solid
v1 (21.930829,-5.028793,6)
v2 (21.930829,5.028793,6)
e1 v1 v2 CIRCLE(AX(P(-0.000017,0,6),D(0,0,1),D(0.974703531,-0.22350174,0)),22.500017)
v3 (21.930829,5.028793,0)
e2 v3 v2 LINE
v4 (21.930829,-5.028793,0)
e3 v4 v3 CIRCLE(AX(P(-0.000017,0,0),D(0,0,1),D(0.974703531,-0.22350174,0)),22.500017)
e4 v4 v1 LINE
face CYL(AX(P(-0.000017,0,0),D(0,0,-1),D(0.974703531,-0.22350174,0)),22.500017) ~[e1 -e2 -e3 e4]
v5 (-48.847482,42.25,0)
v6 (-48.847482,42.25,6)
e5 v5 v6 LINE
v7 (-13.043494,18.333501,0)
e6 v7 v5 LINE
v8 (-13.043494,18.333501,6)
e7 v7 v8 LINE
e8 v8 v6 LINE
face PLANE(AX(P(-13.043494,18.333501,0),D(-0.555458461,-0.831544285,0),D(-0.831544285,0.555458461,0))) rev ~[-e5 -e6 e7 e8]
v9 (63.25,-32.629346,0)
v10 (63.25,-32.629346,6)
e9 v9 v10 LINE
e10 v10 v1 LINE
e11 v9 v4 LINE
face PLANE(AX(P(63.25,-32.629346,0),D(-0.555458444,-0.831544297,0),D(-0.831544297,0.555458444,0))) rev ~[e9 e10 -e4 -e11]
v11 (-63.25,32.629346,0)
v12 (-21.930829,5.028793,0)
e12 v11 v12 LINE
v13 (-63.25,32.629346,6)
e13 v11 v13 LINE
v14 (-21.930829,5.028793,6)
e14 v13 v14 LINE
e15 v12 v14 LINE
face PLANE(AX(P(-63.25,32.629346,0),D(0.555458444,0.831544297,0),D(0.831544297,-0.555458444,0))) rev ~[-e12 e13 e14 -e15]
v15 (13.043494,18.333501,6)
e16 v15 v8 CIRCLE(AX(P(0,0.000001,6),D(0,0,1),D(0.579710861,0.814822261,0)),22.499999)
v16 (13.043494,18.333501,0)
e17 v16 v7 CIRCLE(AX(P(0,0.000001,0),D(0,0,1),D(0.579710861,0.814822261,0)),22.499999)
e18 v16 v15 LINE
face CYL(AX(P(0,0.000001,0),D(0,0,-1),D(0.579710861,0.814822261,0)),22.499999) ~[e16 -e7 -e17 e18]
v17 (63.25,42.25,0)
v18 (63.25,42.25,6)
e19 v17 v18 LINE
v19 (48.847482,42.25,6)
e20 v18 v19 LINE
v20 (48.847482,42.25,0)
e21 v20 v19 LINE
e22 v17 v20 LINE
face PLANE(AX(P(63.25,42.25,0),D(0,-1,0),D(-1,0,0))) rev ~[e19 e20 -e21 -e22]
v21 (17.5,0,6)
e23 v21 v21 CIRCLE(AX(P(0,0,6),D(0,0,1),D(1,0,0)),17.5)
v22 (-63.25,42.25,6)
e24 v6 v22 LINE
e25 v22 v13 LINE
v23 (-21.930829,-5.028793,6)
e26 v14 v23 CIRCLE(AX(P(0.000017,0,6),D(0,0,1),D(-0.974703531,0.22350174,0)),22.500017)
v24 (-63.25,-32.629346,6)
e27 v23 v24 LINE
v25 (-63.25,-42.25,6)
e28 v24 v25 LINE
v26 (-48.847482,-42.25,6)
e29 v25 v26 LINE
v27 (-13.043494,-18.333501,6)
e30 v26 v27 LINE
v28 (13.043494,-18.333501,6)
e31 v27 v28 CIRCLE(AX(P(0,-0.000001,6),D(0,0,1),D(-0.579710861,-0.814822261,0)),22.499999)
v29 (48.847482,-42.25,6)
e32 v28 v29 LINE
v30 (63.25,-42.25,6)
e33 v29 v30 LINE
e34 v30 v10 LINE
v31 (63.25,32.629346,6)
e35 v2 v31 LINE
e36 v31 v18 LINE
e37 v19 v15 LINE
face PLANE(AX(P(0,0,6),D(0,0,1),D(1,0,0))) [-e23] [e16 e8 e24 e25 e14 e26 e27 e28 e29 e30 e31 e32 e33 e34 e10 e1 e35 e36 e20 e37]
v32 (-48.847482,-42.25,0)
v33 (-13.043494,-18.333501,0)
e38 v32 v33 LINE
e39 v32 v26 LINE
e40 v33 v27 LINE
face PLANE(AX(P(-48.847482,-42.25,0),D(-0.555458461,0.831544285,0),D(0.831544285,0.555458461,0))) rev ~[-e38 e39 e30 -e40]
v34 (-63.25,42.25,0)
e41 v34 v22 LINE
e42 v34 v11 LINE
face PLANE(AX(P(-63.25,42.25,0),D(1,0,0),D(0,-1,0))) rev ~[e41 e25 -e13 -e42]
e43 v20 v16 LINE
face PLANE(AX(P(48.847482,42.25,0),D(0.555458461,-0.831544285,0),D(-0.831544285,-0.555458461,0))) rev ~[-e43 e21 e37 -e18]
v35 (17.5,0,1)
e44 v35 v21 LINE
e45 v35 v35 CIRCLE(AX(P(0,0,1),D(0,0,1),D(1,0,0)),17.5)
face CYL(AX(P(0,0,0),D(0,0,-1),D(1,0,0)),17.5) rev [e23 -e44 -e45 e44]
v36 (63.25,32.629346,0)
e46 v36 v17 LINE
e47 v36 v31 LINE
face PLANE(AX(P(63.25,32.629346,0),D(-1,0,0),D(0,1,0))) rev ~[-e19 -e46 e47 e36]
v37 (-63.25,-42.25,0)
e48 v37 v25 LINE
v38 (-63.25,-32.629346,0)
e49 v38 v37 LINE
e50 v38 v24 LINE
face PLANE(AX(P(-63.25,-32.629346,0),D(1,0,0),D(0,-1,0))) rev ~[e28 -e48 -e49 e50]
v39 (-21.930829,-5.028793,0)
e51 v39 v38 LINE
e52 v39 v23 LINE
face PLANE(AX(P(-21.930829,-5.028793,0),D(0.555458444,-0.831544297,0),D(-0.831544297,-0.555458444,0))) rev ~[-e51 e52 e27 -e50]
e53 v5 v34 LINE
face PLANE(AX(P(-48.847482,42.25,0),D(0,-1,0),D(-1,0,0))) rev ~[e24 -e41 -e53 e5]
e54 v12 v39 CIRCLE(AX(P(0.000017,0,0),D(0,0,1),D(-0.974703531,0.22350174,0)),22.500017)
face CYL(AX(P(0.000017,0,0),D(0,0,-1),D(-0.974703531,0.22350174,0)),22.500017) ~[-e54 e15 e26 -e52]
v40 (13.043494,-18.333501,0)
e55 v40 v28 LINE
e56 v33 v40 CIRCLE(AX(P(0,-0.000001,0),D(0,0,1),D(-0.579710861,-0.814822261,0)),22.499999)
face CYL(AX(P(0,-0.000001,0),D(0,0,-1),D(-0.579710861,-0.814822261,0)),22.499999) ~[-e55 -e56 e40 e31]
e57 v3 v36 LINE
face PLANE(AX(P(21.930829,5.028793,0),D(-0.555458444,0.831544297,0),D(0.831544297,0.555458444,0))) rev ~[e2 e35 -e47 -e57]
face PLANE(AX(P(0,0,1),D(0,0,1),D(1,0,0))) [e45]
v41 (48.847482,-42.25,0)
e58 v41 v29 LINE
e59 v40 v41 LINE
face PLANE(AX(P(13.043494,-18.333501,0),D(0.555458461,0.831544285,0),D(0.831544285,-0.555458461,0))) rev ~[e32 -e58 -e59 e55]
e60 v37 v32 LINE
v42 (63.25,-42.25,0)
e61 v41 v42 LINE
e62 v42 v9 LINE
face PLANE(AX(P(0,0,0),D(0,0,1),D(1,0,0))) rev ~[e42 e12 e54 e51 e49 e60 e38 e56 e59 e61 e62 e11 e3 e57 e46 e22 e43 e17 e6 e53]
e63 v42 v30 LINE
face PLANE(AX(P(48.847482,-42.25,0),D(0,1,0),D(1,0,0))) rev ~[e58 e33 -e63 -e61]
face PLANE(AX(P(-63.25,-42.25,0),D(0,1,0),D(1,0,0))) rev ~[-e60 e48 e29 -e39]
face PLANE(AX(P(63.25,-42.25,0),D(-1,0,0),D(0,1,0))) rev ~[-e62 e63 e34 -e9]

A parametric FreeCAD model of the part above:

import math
import FreeCAD as App
import Part
import Sketcher

V = App.Vector

doc = App.newDocument("Part")
body = doc.addObject("PartDesign::Body", "Body")

# Sketch on XY plane
sketch1 = body.newObject("Sketcher::SketchObject", "Sketch")
sketch1.AttachmentSupport = (doc.getObject("XY_Plane"), [""])
sketch1.MapMode = "FlatFace"
sketch1.addGeometry(Part.LineSegment(V(-63.25, -32.629346, 0), V(-63.25, -42.25, 0)), False)
sketch1.addGeometry(Part.LineSegment(V(-63.25, -42.25, 0), V(-48.847482, -42.25, 0)), False)
sketch1.addGeometry(Part.LineSegment(V(-48.847482, -42.25, 0), V(-13.043494, -18.333501, 0)), False)
sketch1.addGeometry(Part.ArcOfCircle(Part.Circle(V(0, -0.000001, 0), V(0, 0, 1), 22.499999), math.radians(-125.430209), math.radians(-54.569791)), False)
sketch1.addGeometry(Part.LineSegment(V(13.043494, -18.333501, 0), V(48.847482, -42.25, 0)), False)
sketch1.addGeometry(Part.LineSegment(V(48.847482, -42.25, 0), V(63.25, -42.25, 0)), False)
sketch1.addGeometry(Part.LineSegment(V(63.25, -42.25, 0), V(63.25, -32.629346, 0)), False)
sketch1.addGeometry(Part.LineSegment(V(63.25, -32.629346, 0), V(21.930829, -5.028793, 0)), False)
sketch1.addGeometry(Part.ArcOfCircle(Part.Circle(V(-0.000017, 0, 0), V(0, 0, 1), 22.500017), math.radians(-12.914791), math.radians(12.914791)), False)
sketch1.addGeometry(Part.LineSegment(V(21.930829, 5.028793, 0), V(63.25, 32.629346, 0)), False)
sketch1.addGeometry(Part.LineSegment(V(63.25, 32.629346, 0), V(63.25, 42.25, 0)), False)
sketch1.addGeometry(Part.LineSegment(V(63.25, 42.25, 0), V(48.847482, 42.25, 0)), False)
sketch1.addGeometry(Part.LineSegment(V(48.847482, 42.25, 0), V(13.043494, 18.333501, 0)), False)
sketch1.addGeometry(Part.ArcOfCircle(Part.Circle(V(0, 0.000001, 0), V(0, 0, 1), 22.499999), math.radians(54.569791), math.radians(125.430209)), False)
sketch1.addGeometry(Part.LineSegment(V(-13.043494, 18.333501, 0), V(-48.847482, 42.25, 0)), False)
sketch1.addGeometry(Part.LineSegment(V(-48.847482, 42.25, 0), V(-63.25, 42.25, 0)), False)
sketch1.addGeometry(Part.LineSegment(V(-63.25, 42.25, 0), V(-63.25, 32.629346, 0)), False)
sketch1.addGeometry(Part.LineSegment(V(-63.25, 32.629346, 0), V(-21.930829, 5.028793, 0)), False)
sketch1.addGeometry(Part.ArcOfCircle(Part.Circle(V(0.000017, 0, 0), V(0, 0, 1), 22.500017), math.radians(167.085209), math.radians(192.914791)), False)
sketch1.addGeometry(Part.LineSegment(V(-21.930829, -5.028793, 0), V(-63.25, -32.629346, 0)), False)
sketch1.addGeometry(Part.Circle(V(0, 0, 0), V(0, 0, 1), 17.5), False)
sketch1.addConstraint(Sketcher.Constraint("Coincident", 0, 2, 1, 1))
sketch1.addConstraint(Sketcher.Constraint("Coincident", 1, 2, 2, 1))
sketch1.addConstraint(Sketcher.Constraint("Coincident", 2, 2, 3, 1))
sketch1.addConstraint(Sketcher.Constraint("Coincident", 3, 2, 4, 1))
sketch1.addConstraint(Sketcher.Constraint("Coincident", 4, 2, 5, 1))
sketch1.addConstraint(Sketcher.Constraint("Coincident", 5, 2, 6, 1))
sketch1.addConstraint(Sketcher.Constraint("Coincident", 6, 2, 7, 1))
sketch1.addConstraint(Sketcher.Constraint("Coincident", 7, 2, 8, 1))
sketch1.addConstraint(Sketcher.Constraint("Coincident", 8, 2, 9, 1))
sketch1.addConstraint(Sketcher.Constraint("Coincident", 9, 2, 10, 1))
sketch1.addConstraint(Sketcher.Constraint("Coincident", 10, 2, 11, 1))
sketch1.addConstraint(Sketcher.Constraint("Coincident", 11, 2, 12, 1))
sketch1.addConstraint(Sketcher.Constraint("Coincident", 12, 2, 13, 1))
sketch1.addConstraint(Sketcher.Constraint("Coincident", 13, 2, 14, 1))
sketch1.addConstraint(Sketcher.Constraint("Coincident", 14, 2, 15, 1))
sketch1.addConstraint(Sketcher.Constraint("Coincident", 15, 2, 16, 1))
sketch1.addConstraint(Sketcher.Constraint("Coincident", 16, 2, 17, 1))
sketch1.addConstraint(Sketcher.Constraint("Coincident", 17, 2, 18, 1))
sketch1.addConstraint(Sketcher.Constraint("Coincident", 18, 2, 19, 1))
sketch1.addConstraint(Sketcher.Constraint("Coincident", 19, 2, 0, 1))
sketch1.addConstraint(Sketcher.Constraint("Vertical", 0))
sketch1.addConstraint(Sketcher.Constraint("Horizontal", 1))
sketch1.addConstraint(Sketcher.Constraint("Horizontal", 5))
sketch1.addConstraint(Sketcher.Constraint("Vertical", 6))
sketch1.addConstraint(Sketcher.Constraint("Vertical", 10))
sketch1.addConstraint(Sketcher.Constraint("Horizontal", 11))
sketch1.addConstraint(Sketcher.Constraint("Horizontal", 15))
sketch1.addConstraint(Sketcher.Constraint("Vertical", 16))
sketch1.addConstraint(Sketcher.Constraint("Coincident", 3, 3, -1, 1))
sketch1.addConstraint(Sketcher.Constraint("Coincident", 13, 3, -1, 1))
sketch1.addConstraint(Sketcher.Constraint("Coincident", 20, 3, -1, 1))
sketch1.addConstraint(Sketcher.Constraint("Equal", 3, 13))
sketch1.addConstraint(Sketcher.Constraint("Equal", 8, 18))
sketch1.addConstraint(Sketcher.Constraint("Symmetric", 8, 3, 18, 3, -1, 1))
sketch1.addConstraint(Sketcher.Constraint("Symmetric", 0, 2, 10, 2, -1, 1))
sketch1.addConstraint(Sketcher.Constraint("Symmetric", 4, 2, 14, 2, -1, 1))
sketch1.addConstraint(Sketcher.Constraint("Symmetric", 6, 2, 16, 2, -1, 1))
sketch1.addConstraint(Sketcher.Constraint("Symmetric", 1, 2, 4, 2, -2))
sketch1.addConstraint(Sketcher.Constraint("Symmetric", 9, 2, 16, 2, -2))
sketch1.addConstraint(Sketcher.Constraint("Symmetric", 8, 2, 17, 2, -2))
sketch1.addConstraint(Sketcher.Constraint("Parallel", 4, 7))
sketch1.addConstraint(Sketcher.Constraint("Parallel", 2, 9))
sketch1.addConstraint(Sketcher.Constraint("Parallel", 9, 12))
sketch1.addConstraint(Sketcher.Constraint("Parallel", 7, 14))
sketch1.addConstraint(Sketcher.Constraint("Parallel", 14, 17))
sketch1.addConstraint(Sketcher.Constraint("Parallel", 12, 19))
sketch1.addConstraint(Sketcher.Constraint("Horizontal", 12, 2, 13, 2))
sketch1.addConstraint(Sketcher.Constraint("Horizontal", 7, 2, 18, 2))
sketch1.addConstraint(Sketcher.Constraint("Diameter", 20, 35.0))
sketch1.addConstraint(Sketcher.Constraint("Radius", 3, 22.499999))
sketch1.addConstraint(Sketcher.Constraint("DistanceX", 0, 2, -1, 1, 63.25))
sketch1.addConstraint(Sketcher.Constraint("DistanceY", 0, 2, -1, 1, 42.25))
sketch1.addConstraint(Sketcher.Constraint("Radius", 8, 22.500017))
sketch1.addConstraint(Sketcher.Constraint("DistanceY", 2, 2, -1, 1, 18.333501))
sketch1.addConstraint(Sketcher.Constraint("Distance", 7, 49.689681))
sketch1.addConstraint(Sketcher.Constraint("DistanceX", 1, 1, 1, 2, 14.402518))
sketch1.addConstraint(Sketcher.Constraint("DistanceY", 0, 2, 0, 1, 9.620654))
pad1 = body.newObject("PartDesign::Pad", "Pad")
pad1.Profile = sketch1
pad1.Length = 6

# Sketch on XY plane
sketch2 = body.newObject("Sketcher::SketchObject", "Sketch001")
sketch2.AttachmentSupport = (doc.getObject("XY_Plane"), [""])
sketch2.MapMode = "FlatFace"
sketch2.addGeometry(Part.Circle(V(0, 0, 0), V(0, 0, 1), 17.5), False)
sketch2.addConstraint(Sketcher.Constraint("Coincident", 0, 3, -1, 1))
sketch2.addConstraint(Sketcher.Constraint("Diameter", 0, 35.0))
pad2 = body.newObject("PartDesign::Pad", "Pad001")
pad2.Profile = sketch2
pad2.Length = 1

doc.recompute()
